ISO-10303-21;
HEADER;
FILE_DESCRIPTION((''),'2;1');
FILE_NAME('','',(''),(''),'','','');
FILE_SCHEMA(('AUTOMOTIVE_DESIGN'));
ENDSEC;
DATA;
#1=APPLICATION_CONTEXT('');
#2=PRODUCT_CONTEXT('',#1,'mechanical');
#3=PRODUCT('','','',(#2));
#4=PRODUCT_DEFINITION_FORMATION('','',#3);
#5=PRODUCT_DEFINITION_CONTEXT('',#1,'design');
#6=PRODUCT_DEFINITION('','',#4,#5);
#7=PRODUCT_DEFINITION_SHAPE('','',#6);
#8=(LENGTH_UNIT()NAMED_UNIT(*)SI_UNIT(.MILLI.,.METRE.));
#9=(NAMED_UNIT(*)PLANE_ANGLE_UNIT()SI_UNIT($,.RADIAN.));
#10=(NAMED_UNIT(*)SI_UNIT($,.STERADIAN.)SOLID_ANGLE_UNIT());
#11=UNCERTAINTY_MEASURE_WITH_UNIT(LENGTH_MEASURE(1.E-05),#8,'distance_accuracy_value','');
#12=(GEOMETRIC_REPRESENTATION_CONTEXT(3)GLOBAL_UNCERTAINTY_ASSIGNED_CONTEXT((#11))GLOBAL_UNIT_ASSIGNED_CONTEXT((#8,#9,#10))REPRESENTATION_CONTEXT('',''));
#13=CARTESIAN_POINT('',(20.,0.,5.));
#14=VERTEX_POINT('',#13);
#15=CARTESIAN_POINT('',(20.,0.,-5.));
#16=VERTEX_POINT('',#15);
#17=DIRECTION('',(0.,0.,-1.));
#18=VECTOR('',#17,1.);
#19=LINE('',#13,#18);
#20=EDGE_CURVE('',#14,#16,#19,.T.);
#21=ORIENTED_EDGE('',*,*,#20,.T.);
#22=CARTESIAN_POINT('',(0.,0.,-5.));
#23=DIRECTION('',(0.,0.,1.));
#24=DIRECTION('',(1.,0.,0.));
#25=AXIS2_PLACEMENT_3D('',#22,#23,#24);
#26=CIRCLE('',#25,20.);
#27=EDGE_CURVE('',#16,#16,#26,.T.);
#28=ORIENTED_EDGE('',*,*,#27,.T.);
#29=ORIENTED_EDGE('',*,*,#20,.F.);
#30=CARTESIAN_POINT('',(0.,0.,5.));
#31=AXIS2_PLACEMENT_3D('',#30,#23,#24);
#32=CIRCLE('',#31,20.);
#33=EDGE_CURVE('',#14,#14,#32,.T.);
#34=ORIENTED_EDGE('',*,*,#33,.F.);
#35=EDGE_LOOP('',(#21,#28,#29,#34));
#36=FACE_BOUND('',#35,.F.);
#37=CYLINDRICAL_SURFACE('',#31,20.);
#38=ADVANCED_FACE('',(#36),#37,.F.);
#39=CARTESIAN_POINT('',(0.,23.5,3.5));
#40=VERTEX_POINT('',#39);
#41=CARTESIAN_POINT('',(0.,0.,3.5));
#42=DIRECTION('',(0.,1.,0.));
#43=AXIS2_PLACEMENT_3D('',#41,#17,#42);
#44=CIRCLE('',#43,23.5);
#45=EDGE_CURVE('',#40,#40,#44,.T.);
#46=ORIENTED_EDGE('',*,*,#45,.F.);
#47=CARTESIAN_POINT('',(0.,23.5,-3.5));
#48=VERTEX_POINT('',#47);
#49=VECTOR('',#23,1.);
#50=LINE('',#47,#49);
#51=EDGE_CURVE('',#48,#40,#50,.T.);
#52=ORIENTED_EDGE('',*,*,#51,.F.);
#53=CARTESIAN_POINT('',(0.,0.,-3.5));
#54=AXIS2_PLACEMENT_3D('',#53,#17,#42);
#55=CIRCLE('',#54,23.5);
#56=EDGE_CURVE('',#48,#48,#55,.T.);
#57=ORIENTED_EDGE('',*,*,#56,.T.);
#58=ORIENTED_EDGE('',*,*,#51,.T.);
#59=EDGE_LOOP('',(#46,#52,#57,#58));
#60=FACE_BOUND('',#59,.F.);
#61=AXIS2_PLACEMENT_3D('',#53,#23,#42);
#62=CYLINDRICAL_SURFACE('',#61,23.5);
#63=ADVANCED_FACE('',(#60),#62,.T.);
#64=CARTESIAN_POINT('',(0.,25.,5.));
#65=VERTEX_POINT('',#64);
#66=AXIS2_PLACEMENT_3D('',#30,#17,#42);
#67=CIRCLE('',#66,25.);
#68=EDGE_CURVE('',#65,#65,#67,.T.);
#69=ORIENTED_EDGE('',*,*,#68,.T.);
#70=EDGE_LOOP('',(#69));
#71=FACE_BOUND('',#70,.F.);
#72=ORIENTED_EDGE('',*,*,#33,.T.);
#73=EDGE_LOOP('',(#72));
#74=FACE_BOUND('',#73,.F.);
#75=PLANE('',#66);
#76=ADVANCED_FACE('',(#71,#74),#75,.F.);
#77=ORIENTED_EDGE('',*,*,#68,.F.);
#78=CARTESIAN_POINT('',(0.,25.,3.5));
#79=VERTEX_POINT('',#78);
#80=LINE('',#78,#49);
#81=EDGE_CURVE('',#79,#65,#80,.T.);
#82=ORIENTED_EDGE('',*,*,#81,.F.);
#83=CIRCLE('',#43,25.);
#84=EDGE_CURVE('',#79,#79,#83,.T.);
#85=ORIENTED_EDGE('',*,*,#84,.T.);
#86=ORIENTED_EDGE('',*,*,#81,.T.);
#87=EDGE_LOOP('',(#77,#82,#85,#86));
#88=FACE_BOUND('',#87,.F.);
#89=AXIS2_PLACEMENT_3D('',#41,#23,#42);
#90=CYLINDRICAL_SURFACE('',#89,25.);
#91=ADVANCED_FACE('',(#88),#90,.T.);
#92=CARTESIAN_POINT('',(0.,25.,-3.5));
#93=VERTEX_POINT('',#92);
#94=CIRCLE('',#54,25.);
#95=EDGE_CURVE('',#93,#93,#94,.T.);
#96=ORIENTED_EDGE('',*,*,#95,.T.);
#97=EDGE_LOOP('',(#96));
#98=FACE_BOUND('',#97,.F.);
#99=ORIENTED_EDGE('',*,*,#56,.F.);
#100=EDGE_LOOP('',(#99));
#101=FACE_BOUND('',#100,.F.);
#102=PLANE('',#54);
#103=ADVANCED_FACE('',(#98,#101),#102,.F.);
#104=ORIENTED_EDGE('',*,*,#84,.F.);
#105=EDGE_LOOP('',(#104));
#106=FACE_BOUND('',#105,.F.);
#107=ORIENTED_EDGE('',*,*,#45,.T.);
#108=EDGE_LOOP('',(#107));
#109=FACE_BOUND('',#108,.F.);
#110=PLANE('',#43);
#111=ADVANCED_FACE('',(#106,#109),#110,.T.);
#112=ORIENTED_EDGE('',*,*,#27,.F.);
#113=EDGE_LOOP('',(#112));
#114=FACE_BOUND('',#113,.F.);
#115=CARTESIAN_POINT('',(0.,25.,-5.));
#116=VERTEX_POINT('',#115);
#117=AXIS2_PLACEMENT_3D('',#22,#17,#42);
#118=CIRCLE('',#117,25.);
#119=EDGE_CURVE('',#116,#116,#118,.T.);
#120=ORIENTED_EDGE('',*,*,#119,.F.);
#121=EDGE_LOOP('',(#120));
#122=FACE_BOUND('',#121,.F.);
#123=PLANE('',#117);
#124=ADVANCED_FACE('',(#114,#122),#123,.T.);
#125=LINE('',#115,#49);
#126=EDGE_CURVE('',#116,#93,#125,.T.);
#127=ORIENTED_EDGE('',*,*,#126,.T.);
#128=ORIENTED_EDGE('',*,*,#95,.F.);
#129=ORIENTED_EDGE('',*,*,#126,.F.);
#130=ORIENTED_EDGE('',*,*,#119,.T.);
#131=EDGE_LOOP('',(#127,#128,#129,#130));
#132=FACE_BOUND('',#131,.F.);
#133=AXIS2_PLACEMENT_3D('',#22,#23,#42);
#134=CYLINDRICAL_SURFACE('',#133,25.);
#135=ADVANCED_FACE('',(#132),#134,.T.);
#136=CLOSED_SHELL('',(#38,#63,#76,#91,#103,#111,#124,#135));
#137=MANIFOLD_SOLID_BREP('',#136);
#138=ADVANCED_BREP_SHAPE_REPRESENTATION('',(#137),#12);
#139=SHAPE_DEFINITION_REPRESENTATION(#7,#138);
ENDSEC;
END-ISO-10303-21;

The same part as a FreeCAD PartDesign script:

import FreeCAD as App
import Part
import Sketcher
Q = App.Units.Quantity


def add_polygon(sketch, points):
    """Adds a closed chain of lines whose ends are joined by coincident constraints."""
    first, n = sketch.GeometryCount, len(points)
    for a, b in zip(points, points[1:] + points[:1]):
        sketch.addGeometry(Part.LineSegment(App.Vector(*a, 0), App.Vector(*b, 0)), False)
    for i in range(n):
        sketch.addConstraint(Sketcher.Constraint("Coincident", first + i, 2, first + (i + 1) % n, 1))

doc = App.newDocument("Part")
params = doc.addObject("Spreadsheet::Sheet", "Params")
for row, (alias, value) in enumerate([
    ("sketch1_width", "25 mm"),
    ("sketch1_height", "10 mm"),
    ("sketch1_height2", "7 mm"),
    ("revolution_angle", "360 deg"),
    ("sketch2_diameter", "40 mm"),
], start=1):
    params.set(f"A{row}", alias)
    params.set(f"B{row}", "=" + value)
    params.setAlias(f"B{row}", alias)

body = doc.addObject("PartDesign::Body", "Body")

# Sketch on YZ plane
sketch1 = body.newObject("Sketcher::SketchObject", "Sketch")
sketch1.AttachmentSupport = (doc.getObject("YZ_Plane"), [""])
sketch1.MapMode = "FlatFace"
add_polygon(sketch1, [(25, 5), (0, 5), (0, -5), (25, -5), (25, -3.5), (23.5, -3.5), (23.5, 3.5), (25, 3.5)])  # lines 0-7
sketch1.addConstraint(Sketcher.Constraint("Horizontal", 0))
sketch1.addConstraint(Sketcher.Constraint("Vertical", 1))
sketch1.addConstraint(Sketcher.Constraint("Horizontal", 2))
sketch1.addConstraint(Sketcher.Constraint("Vertical", 3))
sketch1.addConstraint(Sketcher.Constraint("Horizontal", 4))
sketch1.addConstraint(Sketcher.Constraint("Vertical", 5))
sketch1.addConstraint(Sketcher.Constraint("Horizontal", 6))
sketch1.addConstraint(Sketcher.Constraint("Vertical", 7))
sketch1.addConstraint(Sketcher.Constraint("Symmetric", 0, 2, 1, 2, -1, 1))
sketch1.addConstraint(Sketcher.Constraint("Symmetric", 3, 2, 6, 2, -1))
sketch1.addConstraint(Sketcher.Constraint("Equal", 6, 3))
sketch1.addConstraint(Sketcher.Constraint("DistanceX", 0, 2, 0, 1, Q("25 mm")))
sketch1.addConstraint(Sketcher.Constraint("DistanceY", 1, 2, 1, 1, Q("10 mm")))
sketch1.addConstraint(Sketcher.Constraint("DistanceY", 5, 1, 5, 2, Q("7 mm")))
sketch1.setExpression("Constraints[19]", "Params.sketch1_width")
sketch1.setExpression("Constraints[20]", "Params.sketch1_height")
sketch1.setExpression("Constraints[21]", "Params.sketch1_height2")
revolution = body.newObject("PartDesign::Revolution", "Revolution")
revolution.Profile = sketch1
revolution.ReferenceAxis = (sketch1, ["V_Axis"])
revolution.setExpression("Angle", "Params.revolution_angle")

# Sketch on XY plane
sketch2 = body.newObject("Sketcher::SketchObject", "Sketch001")
sketch2.AttachmentSupport = (doc.getObject("XY_Plane"), [""])
sketch2.MapMode = "FlatFace"
sketch2.AttachmentOffset = App.Placement(App.Vector(0, 0, 5), App.Rotation())
sketch2.addGeometry(Part.Circle(App.Vector(0, 0, 0), App.Vector(0, 0, 1), 20), False)
sketch2.addConstraint(Sketcher.Constraint("Coincident", 0, 3, -1, 1))
sketch2.addConstraint(Sketcher.Constraint("Diameter", 0, Q("40 mm")))
sketch2.setExpression("Constraints[1]", "Params.sketch2_diameter")
pocket1 = body.newObject("PartDesign::Pocket", "Pocket")
pocket1.Profile = sketch2
pocket1.Type = "ThroughAll"

doc.recompute()
